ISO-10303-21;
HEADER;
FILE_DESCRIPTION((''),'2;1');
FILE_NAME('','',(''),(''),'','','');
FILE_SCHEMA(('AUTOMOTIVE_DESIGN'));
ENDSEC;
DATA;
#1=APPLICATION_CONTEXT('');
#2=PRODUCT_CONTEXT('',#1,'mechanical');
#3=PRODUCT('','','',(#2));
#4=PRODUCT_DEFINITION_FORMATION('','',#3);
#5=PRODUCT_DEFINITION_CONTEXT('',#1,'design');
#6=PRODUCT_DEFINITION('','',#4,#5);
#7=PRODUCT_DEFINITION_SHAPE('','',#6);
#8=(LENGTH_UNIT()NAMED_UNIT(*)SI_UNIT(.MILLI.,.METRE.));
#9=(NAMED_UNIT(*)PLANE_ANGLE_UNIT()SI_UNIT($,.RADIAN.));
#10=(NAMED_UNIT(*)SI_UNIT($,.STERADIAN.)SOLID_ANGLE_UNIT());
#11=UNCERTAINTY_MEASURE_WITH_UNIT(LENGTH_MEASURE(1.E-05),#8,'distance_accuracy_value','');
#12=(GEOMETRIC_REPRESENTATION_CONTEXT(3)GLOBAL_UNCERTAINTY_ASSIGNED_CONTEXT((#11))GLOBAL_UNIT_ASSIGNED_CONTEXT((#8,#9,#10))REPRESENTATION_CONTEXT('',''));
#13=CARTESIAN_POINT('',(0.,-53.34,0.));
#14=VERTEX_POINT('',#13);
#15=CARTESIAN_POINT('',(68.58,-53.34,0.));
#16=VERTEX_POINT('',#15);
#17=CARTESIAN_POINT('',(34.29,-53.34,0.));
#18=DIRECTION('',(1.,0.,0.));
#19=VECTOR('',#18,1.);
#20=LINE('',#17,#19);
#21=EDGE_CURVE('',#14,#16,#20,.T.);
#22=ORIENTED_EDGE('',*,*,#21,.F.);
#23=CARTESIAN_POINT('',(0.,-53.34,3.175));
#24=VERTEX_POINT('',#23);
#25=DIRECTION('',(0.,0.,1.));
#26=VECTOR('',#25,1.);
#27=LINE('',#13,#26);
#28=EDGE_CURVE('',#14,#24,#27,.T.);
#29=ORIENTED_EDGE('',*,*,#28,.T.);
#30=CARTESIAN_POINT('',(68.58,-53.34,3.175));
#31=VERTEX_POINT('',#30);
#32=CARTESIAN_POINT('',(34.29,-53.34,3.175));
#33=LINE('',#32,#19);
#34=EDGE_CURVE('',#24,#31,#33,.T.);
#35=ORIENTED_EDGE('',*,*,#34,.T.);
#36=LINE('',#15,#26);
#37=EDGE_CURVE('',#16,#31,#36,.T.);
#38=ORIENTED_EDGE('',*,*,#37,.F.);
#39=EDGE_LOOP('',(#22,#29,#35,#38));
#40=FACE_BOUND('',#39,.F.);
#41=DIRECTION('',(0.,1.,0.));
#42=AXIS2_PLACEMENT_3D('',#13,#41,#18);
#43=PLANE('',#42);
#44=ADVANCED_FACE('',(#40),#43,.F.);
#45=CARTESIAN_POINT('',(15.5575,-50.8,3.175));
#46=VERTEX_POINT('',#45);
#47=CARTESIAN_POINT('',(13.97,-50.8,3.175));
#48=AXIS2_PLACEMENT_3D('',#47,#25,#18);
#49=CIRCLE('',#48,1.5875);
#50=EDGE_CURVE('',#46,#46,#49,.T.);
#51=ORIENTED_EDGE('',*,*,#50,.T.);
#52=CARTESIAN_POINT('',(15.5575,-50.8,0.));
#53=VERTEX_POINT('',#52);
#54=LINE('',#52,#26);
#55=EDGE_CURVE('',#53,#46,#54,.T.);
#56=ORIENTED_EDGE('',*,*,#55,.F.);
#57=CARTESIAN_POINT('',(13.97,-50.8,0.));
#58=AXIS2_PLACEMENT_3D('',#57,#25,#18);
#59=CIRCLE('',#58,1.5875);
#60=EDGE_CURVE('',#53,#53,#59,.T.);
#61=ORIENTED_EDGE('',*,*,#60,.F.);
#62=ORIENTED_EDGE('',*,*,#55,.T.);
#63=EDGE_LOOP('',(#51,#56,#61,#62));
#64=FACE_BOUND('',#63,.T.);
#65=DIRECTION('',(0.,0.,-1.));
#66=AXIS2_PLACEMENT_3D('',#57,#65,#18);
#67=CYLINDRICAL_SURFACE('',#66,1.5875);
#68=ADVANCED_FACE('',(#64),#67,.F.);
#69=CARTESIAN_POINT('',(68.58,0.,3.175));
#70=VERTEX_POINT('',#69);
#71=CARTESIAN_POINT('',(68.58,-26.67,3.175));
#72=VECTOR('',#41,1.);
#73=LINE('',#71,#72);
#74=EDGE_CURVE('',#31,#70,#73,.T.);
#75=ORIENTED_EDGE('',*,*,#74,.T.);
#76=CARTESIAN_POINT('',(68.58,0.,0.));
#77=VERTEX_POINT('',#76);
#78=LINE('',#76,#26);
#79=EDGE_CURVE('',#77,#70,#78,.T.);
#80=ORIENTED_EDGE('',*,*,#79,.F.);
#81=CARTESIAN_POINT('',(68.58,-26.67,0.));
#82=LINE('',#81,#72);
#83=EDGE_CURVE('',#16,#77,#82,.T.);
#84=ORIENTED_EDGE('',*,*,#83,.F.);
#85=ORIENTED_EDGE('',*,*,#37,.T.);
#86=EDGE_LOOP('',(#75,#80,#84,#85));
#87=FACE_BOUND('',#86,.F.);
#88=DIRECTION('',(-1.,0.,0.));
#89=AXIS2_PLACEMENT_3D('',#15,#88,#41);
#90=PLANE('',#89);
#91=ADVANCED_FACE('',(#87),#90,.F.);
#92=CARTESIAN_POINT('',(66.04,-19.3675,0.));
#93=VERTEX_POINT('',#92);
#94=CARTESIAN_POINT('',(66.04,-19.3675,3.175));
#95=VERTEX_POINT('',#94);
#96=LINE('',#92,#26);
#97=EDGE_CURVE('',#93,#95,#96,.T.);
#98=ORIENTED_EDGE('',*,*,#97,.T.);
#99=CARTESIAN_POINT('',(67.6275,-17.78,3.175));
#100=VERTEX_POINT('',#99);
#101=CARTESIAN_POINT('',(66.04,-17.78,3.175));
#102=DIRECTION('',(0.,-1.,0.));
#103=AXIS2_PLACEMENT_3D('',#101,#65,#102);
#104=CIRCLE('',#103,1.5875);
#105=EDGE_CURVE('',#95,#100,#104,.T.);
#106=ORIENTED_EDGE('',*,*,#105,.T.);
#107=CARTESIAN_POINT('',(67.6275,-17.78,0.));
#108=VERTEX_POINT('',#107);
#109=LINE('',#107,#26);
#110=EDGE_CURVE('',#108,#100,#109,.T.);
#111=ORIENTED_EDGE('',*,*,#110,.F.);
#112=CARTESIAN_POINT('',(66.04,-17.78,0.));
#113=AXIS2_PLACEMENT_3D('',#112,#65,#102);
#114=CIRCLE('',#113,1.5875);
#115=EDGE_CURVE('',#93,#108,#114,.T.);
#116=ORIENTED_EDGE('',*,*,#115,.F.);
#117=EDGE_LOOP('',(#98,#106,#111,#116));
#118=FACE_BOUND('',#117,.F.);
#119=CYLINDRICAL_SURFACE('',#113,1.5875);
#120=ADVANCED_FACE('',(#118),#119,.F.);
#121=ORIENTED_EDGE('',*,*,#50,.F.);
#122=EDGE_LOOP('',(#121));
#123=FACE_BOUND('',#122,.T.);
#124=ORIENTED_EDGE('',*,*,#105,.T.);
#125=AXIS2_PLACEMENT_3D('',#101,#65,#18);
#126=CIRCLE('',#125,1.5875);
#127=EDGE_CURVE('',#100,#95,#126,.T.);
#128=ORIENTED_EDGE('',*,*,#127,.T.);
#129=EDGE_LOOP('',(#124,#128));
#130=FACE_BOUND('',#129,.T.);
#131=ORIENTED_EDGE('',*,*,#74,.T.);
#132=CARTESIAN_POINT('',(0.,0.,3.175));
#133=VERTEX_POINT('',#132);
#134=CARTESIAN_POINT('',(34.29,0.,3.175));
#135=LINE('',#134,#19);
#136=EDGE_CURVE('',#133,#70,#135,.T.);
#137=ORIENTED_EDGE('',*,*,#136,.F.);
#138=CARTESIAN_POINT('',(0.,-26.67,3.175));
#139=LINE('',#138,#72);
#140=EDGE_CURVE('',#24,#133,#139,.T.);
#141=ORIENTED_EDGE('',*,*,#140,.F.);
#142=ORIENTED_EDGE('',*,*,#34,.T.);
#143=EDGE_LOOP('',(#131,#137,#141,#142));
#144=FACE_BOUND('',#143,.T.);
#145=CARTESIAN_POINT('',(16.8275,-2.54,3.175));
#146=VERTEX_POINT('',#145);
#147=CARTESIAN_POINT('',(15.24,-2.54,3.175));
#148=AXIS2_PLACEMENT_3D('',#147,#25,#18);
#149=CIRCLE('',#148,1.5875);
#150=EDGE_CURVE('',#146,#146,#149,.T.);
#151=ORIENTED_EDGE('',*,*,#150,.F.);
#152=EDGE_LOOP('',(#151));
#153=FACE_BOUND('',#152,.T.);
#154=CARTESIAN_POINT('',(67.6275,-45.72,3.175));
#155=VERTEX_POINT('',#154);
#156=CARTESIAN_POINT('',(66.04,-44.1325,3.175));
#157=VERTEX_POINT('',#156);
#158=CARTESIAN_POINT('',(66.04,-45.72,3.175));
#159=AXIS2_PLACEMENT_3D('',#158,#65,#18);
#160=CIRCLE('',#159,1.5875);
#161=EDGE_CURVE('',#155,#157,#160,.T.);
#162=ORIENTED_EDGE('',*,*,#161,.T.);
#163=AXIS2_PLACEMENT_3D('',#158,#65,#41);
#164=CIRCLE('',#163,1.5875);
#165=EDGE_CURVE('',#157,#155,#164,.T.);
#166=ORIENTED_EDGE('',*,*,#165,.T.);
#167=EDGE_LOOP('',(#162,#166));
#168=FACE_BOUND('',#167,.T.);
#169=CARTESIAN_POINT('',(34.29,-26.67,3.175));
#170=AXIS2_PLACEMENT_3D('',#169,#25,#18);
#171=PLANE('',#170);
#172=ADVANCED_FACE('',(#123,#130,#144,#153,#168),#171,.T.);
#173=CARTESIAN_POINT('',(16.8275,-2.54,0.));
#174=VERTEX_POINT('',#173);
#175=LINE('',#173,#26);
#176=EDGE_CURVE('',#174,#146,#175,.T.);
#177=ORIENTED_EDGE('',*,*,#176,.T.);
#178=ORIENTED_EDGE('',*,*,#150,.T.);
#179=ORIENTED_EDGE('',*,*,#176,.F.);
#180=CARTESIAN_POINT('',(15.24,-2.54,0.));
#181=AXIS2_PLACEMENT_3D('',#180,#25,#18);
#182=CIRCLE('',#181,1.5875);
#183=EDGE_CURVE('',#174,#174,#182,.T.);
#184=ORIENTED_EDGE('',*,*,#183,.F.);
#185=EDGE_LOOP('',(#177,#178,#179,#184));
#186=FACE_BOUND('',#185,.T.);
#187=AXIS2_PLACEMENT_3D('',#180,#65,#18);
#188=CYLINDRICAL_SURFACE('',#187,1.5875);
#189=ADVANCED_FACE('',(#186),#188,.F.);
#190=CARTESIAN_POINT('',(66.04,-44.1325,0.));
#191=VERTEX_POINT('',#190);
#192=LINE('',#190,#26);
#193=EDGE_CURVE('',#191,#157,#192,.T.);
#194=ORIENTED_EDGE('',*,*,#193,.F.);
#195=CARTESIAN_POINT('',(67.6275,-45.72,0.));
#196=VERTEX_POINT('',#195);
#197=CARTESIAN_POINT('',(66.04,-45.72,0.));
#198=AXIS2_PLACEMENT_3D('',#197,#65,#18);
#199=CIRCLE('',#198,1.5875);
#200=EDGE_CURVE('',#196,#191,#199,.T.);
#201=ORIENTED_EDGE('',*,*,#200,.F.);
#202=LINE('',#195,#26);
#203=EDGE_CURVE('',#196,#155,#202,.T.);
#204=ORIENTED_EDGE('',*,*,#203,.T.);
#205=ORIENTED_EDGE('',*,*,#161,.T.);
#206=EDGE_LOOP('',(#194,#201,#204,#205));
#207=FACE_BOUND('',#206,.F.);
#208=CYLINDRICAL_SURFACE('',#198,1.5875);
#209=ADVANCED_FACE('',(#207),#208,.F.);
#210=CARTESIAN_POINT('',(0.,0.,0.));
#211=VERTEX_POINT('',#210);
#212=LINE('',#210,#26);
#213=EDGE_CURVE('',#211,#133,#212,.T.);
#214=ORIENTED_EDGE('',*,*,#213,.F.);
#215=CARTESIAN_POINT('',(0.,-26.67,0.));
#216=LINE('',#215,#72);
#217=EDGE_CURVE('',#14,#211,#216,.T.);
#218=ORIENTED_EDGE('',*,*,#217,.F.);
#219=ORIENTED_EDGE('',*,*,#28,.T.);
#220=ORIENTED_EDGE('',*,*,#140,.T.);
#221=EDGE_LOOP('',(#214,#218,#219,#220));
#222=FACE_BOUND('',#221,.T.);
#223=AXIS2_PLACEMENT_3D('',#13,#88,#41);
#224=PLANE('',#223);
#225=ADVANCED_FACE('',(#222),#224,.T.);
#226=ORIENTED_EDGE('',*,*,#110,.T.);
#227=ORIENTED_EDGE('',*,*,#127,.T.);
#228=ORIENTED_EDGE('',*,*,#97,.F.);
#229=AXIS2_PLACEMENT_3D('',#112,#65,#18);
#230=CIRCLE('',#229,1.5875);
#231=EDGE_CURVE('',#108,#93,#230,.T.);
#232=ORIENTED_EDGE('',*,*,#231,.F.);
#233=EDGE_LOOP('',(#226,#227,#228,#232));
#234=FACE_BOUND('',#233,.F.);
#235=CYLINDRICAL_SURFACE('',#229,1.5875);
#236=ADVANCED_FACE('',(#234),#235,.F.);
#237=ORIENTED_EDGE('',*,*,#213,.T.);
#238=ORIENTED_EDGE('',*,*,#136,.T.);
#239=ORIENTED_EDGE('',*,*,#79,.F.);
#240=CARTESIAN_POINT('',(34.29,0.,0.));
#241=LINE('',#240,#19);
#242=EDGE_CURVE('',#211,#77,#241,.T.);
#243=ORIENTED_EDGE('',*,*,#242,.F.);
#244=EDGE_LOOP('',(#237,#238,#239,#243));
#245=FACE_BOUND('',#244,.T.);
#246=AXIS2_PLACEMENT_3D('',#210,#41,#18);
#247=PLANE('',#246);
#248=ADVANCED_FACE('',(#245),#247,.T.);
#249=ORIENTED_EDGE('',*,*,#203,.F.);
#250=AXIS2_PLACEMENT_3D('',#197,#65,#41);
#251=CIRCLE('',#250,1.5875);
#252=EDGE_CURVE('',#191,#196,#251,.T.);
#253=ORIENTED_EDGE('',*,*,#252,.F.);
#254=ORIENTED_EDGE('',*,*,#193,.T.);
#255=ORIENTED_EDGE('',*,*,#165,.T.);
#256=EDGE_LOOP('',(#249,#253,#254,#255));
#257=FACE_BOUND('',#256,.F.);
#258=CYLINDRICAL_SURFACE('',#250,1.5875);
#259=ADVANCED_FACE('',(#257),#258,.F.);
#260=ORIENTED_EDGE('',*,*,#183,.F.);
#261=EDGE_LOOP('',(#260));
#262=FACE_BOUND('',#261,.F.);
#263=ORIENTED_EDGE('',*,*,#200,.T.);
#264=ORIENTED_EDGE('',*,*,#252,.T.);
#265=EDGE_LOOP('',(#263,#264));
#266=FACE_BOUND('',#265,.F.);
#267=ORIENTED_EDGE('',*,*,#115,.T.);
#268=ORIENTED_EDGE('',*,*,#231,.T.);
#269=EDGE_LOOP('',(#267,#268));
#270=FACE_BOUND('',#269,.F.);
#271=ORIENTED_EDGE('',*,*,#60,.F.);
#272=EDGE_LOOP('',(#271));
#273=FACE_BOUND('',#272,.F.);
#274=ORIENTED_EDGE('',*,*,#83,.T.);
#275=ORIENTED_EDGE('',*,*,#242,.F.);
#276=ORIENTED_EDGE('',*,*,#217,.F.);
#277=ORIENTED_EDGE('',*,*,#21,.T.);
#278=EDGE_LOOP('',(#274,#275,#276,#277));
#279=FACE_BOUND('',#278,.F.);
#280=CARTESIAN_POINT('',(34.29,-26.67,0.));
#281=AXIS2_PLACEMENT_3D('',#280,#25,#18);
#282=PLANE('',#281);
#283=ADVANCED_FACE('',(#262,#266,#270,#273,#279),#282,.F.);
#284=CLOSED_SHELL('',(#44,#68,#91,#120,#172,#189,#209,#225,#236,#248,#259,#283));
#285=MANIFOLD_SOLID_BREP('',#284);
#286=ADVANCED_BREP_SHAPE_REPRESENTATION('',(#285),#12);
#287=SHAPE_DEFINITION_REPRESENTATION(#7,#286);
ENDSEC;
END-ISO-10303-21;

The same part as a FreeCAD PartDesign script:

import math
import FreeCAD as App
import Part
import Sketcher
from FreeCAD import Vector
Q = App.Units.Quantity


def add_polygon(sketch, points):
    """Adds a closed chain of lines whose ends are joined by coincident constraints."""
    first, n = sketch.GeometryCount, len(points)
    for a, b in zip(points, points[1:] + points[:1]):
        sketch.addGeometry(Part.LineSegment(App.Vector(*a, 0), App.Vector(*b, 0)), False)
    for i in range(n):
        sketch.addConstraint(Sketcher.Constraint("Coincident", first + i, 2, first + (i + 1) % n, 1))

doc = App.newDocument("Part")
body = doc.addObject("PartDesign::Body", "Body")

sketch1 = body.newObject("Sketcher::SketchObject", "Sketch")
sketch1.AttachmentSupport = (doc.getObject("XY_Plane"), [""])
sketch1.MapMode = "FlatFace"
add_polygon(sketch1, [(0, 0), (0, -53.3), (68.6, -53.3), (68.6, 0)])
sketch1.addGeometry(Part.Circle(Vector(14, -50.8, 0), Vector(0, 0, 1), 1.6), False)
sketch1.addGeometry(Part.ArcOfCircle(Part.Circle(Vector(66, -45.7, 0), Vector(0, 0, 1), 1.6), math.radians(0), math.radians(90)), False)
sketch1.addGeometry(Part.ArcOfCircle(Part.Circle(Vector(66, -45.7, 0), Vector(0, 0, 1), 1.6), math.radians(90), math.radians(360)), False)
sketch1.addGeometry(Part.Circle(Vector(15.2, -2.5, 0), Vector(0, 0, 1), 1.6), False)
sketch1.addGeometry(Part.ArcOfCircle(Part.Circle(Vector(66, -17.8, 0), Vector(0, 0, 1), 1.6), math.radians(0), math.radians(270)), False)
sketch1.addGeometry(Part.ArcOfCircle(Part.Circle(Vector(66, -17.8, 0), Vector(0, 0, 1), 1.6), math.radians(-90), math.radians(0)), False)
sketch1.addConstraint([
    Sketcher.Constraint("Tangent", 5, 1, 6, 2),
    Sketcher.Constraint("Coincident", 6, 1, 5, 2),
    Sketcher.Constraint("Tangent", 8, 1, 9, 2),
    Sketcher.Constraint("Coincident", 9, 1, 8, 2),
    Sketcher.Constraint("Vertical", 0),
    Sketcher.Constraint("Horizontal", 1),
    Sketcher.Constraint("Vertical", 2),
    Sketcher.Constraint("Horizontal", 3),
    Sketcher.Constraint("Coincident", 3, 2, -1, 1),
    Sketcher.Constraint("Equal", 4, 5),
    Sketcher.Constraint("Equal", 6, 7),
    Sketcher.Constraint("Equal", 7, 8),
    Sketcher.Constraint("Horizontal", 6, 3, 5, 1),
    Sketcher.Constraint("Horizontal", 9, 3, 8, 1),
    Sketcher.Constraint("Vertical", 6, 3, 8, 3),
    Sketcher.Constraint("Vertical", 9, 3, 6, 1),
    Sketcher.Constraint("Vertical", 6, 1, 9, 1),
    Sketcher.Constraint("Diameter", 4, Q("0.125 in")),
    Sketcher.Constraint("DistanceX", 1, 1, 1, 2, Q("2.7 in")),
    Sketcher.Constraint("DistanceY", 0, 2, 0, 1, Q("2.1 in")),
    Sketcher.Constraint("DistanceY", 4, 3, -1, 1, Q("2 in")),
    Sketcher.Constraint("DistanceX", 7, 3, 5, 3, Q("2 in")),
    Sketcher.Constraint("DistanceY", 0, 2, 7, 3, Q("2 in")),
    Sketcher.Constraint("DistanceX", -1, 1, 5, 3, Q("2.6 in")),
    Sketcher.Constraint("DistanceY", 5, 3, -1, 1, Q("1.8 in")),
    Sketcher.Constraint("DistanceY", 8, 3, -1, 1, Q("0.7 in")),
    Sketcher.Constraint("DistanceX", -1, 1, 4, 3, Q("0.55 in")),
])
pad1 = body.newObject("PartDesign::Pad", "Pad")
pad1.Profile = sketch1
pad1.Length = Q("0.125 in")

doc.recompute()
